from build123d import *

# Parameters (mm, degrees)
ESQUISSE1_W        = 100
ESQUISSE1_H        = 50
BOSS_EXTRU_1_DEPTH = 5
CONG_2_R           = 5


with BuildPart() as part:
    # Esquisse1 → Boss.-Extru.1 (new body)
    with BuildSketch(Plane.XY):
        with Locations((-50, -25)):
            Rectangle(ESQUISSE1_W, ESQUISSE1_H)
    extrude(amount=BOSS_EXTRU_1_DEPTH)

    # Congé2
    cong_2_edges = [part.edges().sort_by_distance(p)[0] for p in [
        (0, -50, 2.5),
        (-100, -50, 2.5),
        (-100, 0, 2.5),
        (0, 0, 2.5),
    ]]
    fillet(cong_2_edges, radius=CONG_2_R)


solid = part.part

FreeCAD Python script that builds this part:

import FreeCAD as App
import Part
import Sketcher
from FreeCAD import Vector
Q = App.Units.Quantity


def edges_at(feature, points):
    """Names of the edges that pass closest to the given points."""
    edges = feature.Shape.Edges
    near = lambda p: min(range(len(edges)), key=lambda i: edges[i].distToShape(Part.Vertex(*p))[0])
    return sorted({f"Edge{near(p) + 1}" for p in points})


def add_polygon(sketch, points):
    """Adds a closed chain of lines whose ends are joined by coincident constraints."""
    first, n = sketch.GeometryCount, len(points)
    for a, b in zip(points, points[1:] + points[:1]):
        sketch.addGeometry(Part.LineSegment(App.Vector(*a, 0), App.Vector(*b, 0)), False)
    for i in range(n):
        sketch.addConstraint(Sketcher.Constraint("Coincident", first + i, 2, first + (i + 1) % n, 1))

doc = App.newDocument("Part")
params = doc.addObject("Spreadsheet::Sheet", "Params")
for row, (alias, value) in enumerate([
    ("sketch1_width", "100 mm"),
    ("sketch1_height", "50 mm"),
    ("pad1_length", "5 mm"),
    ("fillet_radius", "5 mm"),
], start=1):
    params.set(f"A{row}", alias)
    params.set(f"B{row}", "=" + value)
    params.setAlias(f"B{row}", alias)

body = doc.addObject("PartDesign::Body", "Body")

# Sketch on XY plane
sketch1 = body.newObject("Sketcher::SketchObject", "Sketch")
sketch1.AttachmentSupport = (doc.getObject("XY_Plane"), [""])
sketch1.MapMode = "FlatFace"
add_polygon(sketch1, [(-100, 0), (-100, -50), (0, -50), (0, 0)])  # lines 0-3
sketch1.addConstraint([
    Sketcher.Constraint("Vertical", 0),
    Sketcher.Constraint("Horizontal", 1),
    Sketcher.Constraint("Vertical", 2),
    Sketcher.Constraint("Horizontal", 3),
    Sketcher.Constraint("Coincident", 2, 2, -1, 1),
    Sketcher.Constraint("DistanceX", 1, 1, 1, 2, Q("100 mm")),
    Sketcher.Constraint("DistanceY", 0, 2, 0, 1, Q("50 mm")),
])
sketch1.setExpression("Constraints[9]", "Params.sketch1_width")
sketch1.setExpression("Constraints[10]", "Params.sketch1_height")
pad1 = body.newObject("PartDesign::Pad", "Pad")
pad1.Profile = sketch1
pad1.setExpression("Length", "Params.pad1_length")
doc.recompute()

fillet = body.newObject("PartDesign::Fillet", "Fillet")
fillet.Base = (pad1, edges_at(pad1, [
    (0, -50, 2.5),
    (-100, -50, 2.5),
    (-100, 0, 2.5),
    (0, 0, 2.5),
]))
fillet.setExpression("Radius", "Params.fillet_radius")

doc.recompute()
